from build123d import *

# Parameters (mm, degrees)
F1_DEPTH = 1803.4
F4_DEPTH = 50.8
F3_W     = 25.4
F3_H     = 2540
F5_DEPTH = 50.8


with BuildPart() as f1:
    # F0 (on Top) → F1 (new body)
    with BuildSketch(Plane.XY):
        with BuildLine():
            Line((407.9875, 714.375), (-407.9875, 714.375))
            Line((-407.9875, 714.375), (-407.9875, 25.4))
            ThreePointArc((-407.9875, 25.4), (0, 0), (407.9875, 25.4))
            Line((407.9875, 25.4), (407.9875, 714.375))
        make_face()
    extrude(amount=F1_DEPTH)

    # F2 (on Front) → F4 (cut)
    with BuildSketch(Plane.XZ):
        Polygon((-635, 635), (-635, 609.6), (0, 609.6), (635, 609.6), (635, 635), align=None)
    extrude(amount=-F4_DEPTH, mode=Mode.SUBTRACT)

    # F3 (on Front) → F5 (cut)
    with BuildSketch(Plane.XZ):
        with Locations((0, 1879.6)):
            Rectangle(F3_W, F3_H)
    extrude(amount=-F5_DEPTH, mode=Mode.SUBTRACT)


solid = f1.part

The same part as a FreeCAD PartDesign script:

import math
import FreeCAD as App
import Part
import Sketcher

V = App.Vector
Q = App.Units.Quantity

doc = App.newDocument("Part")
body = doc.addObject("PartDesign::Body", "Body")

sketch1 = body.newObject("Sketcher::SketchObject", "Sketch")
sketch1.AttachmentSupport = (doc.getObject("XY_Plane"), [""])
sketch1.MapMode = "FlatFace"
sketch1.addGeometry(Part.LineSegment(V(408, 714, 0), V(-408, 714, 0)), False)
sketch1.addGeometry(Part.LineSegment(V(-408, 714, 0), V(-408, 25, 0)), False)
sketch1.addGeometry(Part.ArcOfCircle(Part.Circle(V(0, 3289, 0), V(0, 0, 1), 3289), math.radians(-97.12), math.radians(-82.88)), False)
sketch1.addGeometry(Part.LineSegment(V(408, 25, 0), V(408, 714, 0)), False)
sketch1.addConstraint(Sketcher.Constraint("Coincident", 0, 2, 1, 1))
sketch1.addConstraint(Sketcher.Constraint("Coincident", 1, 2, 2, 1))
sketch1.addConstraint(Sketcher.Constraint("Coincident", 2, 2, 3, 1))
sketch1.addConstraint(Sketcher.Constraint("Coincident", 3, 2, 0, 1))
sketch1.addConstraint(Sketcher.Constraint("Horizontal", 0))
sketch1.addConstraint(Sketcher.Constraint("Vertical", 1))
sketch1.addConstraint(Sketcher.Constraint("Vertical", 3))
sketch1.addConstraint(Sketcher.Constraint("PointOnObject", 2, 3, -2))
sketch1.addConstraint(Sketcher.Constraint("Equal", 1, 3))
sketch1.addConstraint(Sketcher.Constraint("DistanceY", -1, 1, 1, 2, Q("1 in")))
sketch1.addConstraint(Sketcher.Constraint("DistanceX", 0, 2, 0, 1, Q("32.125 in")))
sketch1.addConstraint(Sketcher.Constraint("DistanceY", 1, 2, 1, 1, Q("27.125 in")))
sketch1.addConstraint(Sketcher.Constraint("Radius", 2, Q("3289.349609 mm")))
pad1 = body.newObject("PartDesign::Pad", "Pad")
pad1.Profile = sketch1
pad1.Length = Q("71 in")

sketch2 = body.newObject("Sketcher::SketchObject", "Sketch001")
sketch2.AttachmentSupport = (doc.getObject("XZ_Plane"), [""])
sketch2.MapMode = "FlatFace"
sketch2.addGeometry(Part.LineSegment(V(-635, 635, 0), V(-635, 610, 0)), False)
sketch2.addGeometry(Part.LineSegment(V(-635, 610, 0), V(635, 610, 0)), False)
sketch2.addGeometry(Part.LineSegment(V(635, 610, 0), V(635, 635, 0)), False)
sketch2.addGeometry(Part.LineSegment(V(635, 635, 0), V(-635, 635, 0)), False)
sketch2.addConstraint(Sketcher.Constraint("Coincident", 0, 2, 1, 1))
sketch2.addConstraint(Sketcher.Constraint("Coincident", 1, 2, 2, 1))
sketch2.addConstraint(Sketcher.Constraint("Coincident", 2, 2, 3, 1))
sketch2.addConstraint(Sketcher.Constraint("Coincident", 3, 2, 0, 1))
sketch2.addConstraint(Sketcher.Constraint("Vertical", 0))
sketch2.addConstraint(Sketcher.Constraint("Horizontal", 1))
sketch2.addConstraint(Sketcher.Constraint("Vertical", 2))
sketch2.addConstraint(Sketcher.Constraint("Horizontal", 3))
sketch2.addConstraint(Sketcher.Constraint("DistanceX", 1, 1, 1, 2, Q("50 in")))
sketch2.addConstraint(Sketcher.Constraint("DistanceY", 0, 2, 0, 1, Q("1 in")))
sketch2.addConstraint(Sketcher.Constraint("DistanceX", 0, 2, -1, 1, Q("25 in")))
sketch2.addConstraint(Sketcher.Constraint("DistanceY", -1, 1, 0, 2, Q("24 in")))
pocket1 = body.newObject("PartDesign::Pocket", "Pocket")
pocket1.Profile = sketch2
pocket1.Length = Q("2 in")

sketch3 = body.newObject("Sketcher::SketchObject", "Sketch002")
sketch3.AttachmentSupport = (doc.getObject("XZ_Plane"), [""])
sketch3.MapMode = "FlatFace"
sketch3.addGeometry(Part.LineSegment(V(-13, 3150, 0), V(-13, 610, 0)), False)
sketch3.addGeometry(Part.LineSegment(V(-13, 610, 0), V(13, 610, 0)), False)
sketch3.addGeometry(Part.LineSegment(V(13, 610, 0), V(13, 3150, 0)), False)
sketch3.addGeometry(Part.LineSegment(V(13, 3150, 0), V(-13, 3150, 0)), False)
sketch3.addConstraint(Sketcher.Constraint("Coincident", 0, 2, 1, 1))
sketch3.addConstraint(Sketcher.Constraint("Coincident", 1, 2, 2, 1))
sketch3.addConstraint(Sketcher.Constraint("Coincident", 2, 2, 3, 1))
sketch3.addConstraint(Sketcher.Constraint("Coincident", 3, 2, 0, 1))
sketch3.addConstraint(Sketcher.Constraint("Vertical", 0))
sketch3.addConstraint(Sketcher.Constraint("Horizontal", 1))
sketch3.addConstraint(Sketcher.Constraint("Vertical", 2))
sketch3.addConstraint(Sketcher.Constraint("Horizontal", 3))
sketch3.addConstraint(Sketcher.Constraint("DistanceX", 1, 1, 1, 2, Q("1 in")))
sketch3.addConstraint(Sketcher.Constraint("DistanceY", 0, 2, 0, 1, Q("100 in")))
sketch3.addConstraint(Sketcher.Constraint("DistanceY", -1, 1, 0, 2, Q("24 in")))
sketch3.addConstraint(Sketcher.Constraint("DistanceX", 0, 2, -1, 1, Q("0.5 in")))
pocket2 = body.newObject("PartDesign::Pocket", "Pocket001")
pocket2.Profile = sketch3
pocket2.Length = Q("2 in")

doc.recompute()
